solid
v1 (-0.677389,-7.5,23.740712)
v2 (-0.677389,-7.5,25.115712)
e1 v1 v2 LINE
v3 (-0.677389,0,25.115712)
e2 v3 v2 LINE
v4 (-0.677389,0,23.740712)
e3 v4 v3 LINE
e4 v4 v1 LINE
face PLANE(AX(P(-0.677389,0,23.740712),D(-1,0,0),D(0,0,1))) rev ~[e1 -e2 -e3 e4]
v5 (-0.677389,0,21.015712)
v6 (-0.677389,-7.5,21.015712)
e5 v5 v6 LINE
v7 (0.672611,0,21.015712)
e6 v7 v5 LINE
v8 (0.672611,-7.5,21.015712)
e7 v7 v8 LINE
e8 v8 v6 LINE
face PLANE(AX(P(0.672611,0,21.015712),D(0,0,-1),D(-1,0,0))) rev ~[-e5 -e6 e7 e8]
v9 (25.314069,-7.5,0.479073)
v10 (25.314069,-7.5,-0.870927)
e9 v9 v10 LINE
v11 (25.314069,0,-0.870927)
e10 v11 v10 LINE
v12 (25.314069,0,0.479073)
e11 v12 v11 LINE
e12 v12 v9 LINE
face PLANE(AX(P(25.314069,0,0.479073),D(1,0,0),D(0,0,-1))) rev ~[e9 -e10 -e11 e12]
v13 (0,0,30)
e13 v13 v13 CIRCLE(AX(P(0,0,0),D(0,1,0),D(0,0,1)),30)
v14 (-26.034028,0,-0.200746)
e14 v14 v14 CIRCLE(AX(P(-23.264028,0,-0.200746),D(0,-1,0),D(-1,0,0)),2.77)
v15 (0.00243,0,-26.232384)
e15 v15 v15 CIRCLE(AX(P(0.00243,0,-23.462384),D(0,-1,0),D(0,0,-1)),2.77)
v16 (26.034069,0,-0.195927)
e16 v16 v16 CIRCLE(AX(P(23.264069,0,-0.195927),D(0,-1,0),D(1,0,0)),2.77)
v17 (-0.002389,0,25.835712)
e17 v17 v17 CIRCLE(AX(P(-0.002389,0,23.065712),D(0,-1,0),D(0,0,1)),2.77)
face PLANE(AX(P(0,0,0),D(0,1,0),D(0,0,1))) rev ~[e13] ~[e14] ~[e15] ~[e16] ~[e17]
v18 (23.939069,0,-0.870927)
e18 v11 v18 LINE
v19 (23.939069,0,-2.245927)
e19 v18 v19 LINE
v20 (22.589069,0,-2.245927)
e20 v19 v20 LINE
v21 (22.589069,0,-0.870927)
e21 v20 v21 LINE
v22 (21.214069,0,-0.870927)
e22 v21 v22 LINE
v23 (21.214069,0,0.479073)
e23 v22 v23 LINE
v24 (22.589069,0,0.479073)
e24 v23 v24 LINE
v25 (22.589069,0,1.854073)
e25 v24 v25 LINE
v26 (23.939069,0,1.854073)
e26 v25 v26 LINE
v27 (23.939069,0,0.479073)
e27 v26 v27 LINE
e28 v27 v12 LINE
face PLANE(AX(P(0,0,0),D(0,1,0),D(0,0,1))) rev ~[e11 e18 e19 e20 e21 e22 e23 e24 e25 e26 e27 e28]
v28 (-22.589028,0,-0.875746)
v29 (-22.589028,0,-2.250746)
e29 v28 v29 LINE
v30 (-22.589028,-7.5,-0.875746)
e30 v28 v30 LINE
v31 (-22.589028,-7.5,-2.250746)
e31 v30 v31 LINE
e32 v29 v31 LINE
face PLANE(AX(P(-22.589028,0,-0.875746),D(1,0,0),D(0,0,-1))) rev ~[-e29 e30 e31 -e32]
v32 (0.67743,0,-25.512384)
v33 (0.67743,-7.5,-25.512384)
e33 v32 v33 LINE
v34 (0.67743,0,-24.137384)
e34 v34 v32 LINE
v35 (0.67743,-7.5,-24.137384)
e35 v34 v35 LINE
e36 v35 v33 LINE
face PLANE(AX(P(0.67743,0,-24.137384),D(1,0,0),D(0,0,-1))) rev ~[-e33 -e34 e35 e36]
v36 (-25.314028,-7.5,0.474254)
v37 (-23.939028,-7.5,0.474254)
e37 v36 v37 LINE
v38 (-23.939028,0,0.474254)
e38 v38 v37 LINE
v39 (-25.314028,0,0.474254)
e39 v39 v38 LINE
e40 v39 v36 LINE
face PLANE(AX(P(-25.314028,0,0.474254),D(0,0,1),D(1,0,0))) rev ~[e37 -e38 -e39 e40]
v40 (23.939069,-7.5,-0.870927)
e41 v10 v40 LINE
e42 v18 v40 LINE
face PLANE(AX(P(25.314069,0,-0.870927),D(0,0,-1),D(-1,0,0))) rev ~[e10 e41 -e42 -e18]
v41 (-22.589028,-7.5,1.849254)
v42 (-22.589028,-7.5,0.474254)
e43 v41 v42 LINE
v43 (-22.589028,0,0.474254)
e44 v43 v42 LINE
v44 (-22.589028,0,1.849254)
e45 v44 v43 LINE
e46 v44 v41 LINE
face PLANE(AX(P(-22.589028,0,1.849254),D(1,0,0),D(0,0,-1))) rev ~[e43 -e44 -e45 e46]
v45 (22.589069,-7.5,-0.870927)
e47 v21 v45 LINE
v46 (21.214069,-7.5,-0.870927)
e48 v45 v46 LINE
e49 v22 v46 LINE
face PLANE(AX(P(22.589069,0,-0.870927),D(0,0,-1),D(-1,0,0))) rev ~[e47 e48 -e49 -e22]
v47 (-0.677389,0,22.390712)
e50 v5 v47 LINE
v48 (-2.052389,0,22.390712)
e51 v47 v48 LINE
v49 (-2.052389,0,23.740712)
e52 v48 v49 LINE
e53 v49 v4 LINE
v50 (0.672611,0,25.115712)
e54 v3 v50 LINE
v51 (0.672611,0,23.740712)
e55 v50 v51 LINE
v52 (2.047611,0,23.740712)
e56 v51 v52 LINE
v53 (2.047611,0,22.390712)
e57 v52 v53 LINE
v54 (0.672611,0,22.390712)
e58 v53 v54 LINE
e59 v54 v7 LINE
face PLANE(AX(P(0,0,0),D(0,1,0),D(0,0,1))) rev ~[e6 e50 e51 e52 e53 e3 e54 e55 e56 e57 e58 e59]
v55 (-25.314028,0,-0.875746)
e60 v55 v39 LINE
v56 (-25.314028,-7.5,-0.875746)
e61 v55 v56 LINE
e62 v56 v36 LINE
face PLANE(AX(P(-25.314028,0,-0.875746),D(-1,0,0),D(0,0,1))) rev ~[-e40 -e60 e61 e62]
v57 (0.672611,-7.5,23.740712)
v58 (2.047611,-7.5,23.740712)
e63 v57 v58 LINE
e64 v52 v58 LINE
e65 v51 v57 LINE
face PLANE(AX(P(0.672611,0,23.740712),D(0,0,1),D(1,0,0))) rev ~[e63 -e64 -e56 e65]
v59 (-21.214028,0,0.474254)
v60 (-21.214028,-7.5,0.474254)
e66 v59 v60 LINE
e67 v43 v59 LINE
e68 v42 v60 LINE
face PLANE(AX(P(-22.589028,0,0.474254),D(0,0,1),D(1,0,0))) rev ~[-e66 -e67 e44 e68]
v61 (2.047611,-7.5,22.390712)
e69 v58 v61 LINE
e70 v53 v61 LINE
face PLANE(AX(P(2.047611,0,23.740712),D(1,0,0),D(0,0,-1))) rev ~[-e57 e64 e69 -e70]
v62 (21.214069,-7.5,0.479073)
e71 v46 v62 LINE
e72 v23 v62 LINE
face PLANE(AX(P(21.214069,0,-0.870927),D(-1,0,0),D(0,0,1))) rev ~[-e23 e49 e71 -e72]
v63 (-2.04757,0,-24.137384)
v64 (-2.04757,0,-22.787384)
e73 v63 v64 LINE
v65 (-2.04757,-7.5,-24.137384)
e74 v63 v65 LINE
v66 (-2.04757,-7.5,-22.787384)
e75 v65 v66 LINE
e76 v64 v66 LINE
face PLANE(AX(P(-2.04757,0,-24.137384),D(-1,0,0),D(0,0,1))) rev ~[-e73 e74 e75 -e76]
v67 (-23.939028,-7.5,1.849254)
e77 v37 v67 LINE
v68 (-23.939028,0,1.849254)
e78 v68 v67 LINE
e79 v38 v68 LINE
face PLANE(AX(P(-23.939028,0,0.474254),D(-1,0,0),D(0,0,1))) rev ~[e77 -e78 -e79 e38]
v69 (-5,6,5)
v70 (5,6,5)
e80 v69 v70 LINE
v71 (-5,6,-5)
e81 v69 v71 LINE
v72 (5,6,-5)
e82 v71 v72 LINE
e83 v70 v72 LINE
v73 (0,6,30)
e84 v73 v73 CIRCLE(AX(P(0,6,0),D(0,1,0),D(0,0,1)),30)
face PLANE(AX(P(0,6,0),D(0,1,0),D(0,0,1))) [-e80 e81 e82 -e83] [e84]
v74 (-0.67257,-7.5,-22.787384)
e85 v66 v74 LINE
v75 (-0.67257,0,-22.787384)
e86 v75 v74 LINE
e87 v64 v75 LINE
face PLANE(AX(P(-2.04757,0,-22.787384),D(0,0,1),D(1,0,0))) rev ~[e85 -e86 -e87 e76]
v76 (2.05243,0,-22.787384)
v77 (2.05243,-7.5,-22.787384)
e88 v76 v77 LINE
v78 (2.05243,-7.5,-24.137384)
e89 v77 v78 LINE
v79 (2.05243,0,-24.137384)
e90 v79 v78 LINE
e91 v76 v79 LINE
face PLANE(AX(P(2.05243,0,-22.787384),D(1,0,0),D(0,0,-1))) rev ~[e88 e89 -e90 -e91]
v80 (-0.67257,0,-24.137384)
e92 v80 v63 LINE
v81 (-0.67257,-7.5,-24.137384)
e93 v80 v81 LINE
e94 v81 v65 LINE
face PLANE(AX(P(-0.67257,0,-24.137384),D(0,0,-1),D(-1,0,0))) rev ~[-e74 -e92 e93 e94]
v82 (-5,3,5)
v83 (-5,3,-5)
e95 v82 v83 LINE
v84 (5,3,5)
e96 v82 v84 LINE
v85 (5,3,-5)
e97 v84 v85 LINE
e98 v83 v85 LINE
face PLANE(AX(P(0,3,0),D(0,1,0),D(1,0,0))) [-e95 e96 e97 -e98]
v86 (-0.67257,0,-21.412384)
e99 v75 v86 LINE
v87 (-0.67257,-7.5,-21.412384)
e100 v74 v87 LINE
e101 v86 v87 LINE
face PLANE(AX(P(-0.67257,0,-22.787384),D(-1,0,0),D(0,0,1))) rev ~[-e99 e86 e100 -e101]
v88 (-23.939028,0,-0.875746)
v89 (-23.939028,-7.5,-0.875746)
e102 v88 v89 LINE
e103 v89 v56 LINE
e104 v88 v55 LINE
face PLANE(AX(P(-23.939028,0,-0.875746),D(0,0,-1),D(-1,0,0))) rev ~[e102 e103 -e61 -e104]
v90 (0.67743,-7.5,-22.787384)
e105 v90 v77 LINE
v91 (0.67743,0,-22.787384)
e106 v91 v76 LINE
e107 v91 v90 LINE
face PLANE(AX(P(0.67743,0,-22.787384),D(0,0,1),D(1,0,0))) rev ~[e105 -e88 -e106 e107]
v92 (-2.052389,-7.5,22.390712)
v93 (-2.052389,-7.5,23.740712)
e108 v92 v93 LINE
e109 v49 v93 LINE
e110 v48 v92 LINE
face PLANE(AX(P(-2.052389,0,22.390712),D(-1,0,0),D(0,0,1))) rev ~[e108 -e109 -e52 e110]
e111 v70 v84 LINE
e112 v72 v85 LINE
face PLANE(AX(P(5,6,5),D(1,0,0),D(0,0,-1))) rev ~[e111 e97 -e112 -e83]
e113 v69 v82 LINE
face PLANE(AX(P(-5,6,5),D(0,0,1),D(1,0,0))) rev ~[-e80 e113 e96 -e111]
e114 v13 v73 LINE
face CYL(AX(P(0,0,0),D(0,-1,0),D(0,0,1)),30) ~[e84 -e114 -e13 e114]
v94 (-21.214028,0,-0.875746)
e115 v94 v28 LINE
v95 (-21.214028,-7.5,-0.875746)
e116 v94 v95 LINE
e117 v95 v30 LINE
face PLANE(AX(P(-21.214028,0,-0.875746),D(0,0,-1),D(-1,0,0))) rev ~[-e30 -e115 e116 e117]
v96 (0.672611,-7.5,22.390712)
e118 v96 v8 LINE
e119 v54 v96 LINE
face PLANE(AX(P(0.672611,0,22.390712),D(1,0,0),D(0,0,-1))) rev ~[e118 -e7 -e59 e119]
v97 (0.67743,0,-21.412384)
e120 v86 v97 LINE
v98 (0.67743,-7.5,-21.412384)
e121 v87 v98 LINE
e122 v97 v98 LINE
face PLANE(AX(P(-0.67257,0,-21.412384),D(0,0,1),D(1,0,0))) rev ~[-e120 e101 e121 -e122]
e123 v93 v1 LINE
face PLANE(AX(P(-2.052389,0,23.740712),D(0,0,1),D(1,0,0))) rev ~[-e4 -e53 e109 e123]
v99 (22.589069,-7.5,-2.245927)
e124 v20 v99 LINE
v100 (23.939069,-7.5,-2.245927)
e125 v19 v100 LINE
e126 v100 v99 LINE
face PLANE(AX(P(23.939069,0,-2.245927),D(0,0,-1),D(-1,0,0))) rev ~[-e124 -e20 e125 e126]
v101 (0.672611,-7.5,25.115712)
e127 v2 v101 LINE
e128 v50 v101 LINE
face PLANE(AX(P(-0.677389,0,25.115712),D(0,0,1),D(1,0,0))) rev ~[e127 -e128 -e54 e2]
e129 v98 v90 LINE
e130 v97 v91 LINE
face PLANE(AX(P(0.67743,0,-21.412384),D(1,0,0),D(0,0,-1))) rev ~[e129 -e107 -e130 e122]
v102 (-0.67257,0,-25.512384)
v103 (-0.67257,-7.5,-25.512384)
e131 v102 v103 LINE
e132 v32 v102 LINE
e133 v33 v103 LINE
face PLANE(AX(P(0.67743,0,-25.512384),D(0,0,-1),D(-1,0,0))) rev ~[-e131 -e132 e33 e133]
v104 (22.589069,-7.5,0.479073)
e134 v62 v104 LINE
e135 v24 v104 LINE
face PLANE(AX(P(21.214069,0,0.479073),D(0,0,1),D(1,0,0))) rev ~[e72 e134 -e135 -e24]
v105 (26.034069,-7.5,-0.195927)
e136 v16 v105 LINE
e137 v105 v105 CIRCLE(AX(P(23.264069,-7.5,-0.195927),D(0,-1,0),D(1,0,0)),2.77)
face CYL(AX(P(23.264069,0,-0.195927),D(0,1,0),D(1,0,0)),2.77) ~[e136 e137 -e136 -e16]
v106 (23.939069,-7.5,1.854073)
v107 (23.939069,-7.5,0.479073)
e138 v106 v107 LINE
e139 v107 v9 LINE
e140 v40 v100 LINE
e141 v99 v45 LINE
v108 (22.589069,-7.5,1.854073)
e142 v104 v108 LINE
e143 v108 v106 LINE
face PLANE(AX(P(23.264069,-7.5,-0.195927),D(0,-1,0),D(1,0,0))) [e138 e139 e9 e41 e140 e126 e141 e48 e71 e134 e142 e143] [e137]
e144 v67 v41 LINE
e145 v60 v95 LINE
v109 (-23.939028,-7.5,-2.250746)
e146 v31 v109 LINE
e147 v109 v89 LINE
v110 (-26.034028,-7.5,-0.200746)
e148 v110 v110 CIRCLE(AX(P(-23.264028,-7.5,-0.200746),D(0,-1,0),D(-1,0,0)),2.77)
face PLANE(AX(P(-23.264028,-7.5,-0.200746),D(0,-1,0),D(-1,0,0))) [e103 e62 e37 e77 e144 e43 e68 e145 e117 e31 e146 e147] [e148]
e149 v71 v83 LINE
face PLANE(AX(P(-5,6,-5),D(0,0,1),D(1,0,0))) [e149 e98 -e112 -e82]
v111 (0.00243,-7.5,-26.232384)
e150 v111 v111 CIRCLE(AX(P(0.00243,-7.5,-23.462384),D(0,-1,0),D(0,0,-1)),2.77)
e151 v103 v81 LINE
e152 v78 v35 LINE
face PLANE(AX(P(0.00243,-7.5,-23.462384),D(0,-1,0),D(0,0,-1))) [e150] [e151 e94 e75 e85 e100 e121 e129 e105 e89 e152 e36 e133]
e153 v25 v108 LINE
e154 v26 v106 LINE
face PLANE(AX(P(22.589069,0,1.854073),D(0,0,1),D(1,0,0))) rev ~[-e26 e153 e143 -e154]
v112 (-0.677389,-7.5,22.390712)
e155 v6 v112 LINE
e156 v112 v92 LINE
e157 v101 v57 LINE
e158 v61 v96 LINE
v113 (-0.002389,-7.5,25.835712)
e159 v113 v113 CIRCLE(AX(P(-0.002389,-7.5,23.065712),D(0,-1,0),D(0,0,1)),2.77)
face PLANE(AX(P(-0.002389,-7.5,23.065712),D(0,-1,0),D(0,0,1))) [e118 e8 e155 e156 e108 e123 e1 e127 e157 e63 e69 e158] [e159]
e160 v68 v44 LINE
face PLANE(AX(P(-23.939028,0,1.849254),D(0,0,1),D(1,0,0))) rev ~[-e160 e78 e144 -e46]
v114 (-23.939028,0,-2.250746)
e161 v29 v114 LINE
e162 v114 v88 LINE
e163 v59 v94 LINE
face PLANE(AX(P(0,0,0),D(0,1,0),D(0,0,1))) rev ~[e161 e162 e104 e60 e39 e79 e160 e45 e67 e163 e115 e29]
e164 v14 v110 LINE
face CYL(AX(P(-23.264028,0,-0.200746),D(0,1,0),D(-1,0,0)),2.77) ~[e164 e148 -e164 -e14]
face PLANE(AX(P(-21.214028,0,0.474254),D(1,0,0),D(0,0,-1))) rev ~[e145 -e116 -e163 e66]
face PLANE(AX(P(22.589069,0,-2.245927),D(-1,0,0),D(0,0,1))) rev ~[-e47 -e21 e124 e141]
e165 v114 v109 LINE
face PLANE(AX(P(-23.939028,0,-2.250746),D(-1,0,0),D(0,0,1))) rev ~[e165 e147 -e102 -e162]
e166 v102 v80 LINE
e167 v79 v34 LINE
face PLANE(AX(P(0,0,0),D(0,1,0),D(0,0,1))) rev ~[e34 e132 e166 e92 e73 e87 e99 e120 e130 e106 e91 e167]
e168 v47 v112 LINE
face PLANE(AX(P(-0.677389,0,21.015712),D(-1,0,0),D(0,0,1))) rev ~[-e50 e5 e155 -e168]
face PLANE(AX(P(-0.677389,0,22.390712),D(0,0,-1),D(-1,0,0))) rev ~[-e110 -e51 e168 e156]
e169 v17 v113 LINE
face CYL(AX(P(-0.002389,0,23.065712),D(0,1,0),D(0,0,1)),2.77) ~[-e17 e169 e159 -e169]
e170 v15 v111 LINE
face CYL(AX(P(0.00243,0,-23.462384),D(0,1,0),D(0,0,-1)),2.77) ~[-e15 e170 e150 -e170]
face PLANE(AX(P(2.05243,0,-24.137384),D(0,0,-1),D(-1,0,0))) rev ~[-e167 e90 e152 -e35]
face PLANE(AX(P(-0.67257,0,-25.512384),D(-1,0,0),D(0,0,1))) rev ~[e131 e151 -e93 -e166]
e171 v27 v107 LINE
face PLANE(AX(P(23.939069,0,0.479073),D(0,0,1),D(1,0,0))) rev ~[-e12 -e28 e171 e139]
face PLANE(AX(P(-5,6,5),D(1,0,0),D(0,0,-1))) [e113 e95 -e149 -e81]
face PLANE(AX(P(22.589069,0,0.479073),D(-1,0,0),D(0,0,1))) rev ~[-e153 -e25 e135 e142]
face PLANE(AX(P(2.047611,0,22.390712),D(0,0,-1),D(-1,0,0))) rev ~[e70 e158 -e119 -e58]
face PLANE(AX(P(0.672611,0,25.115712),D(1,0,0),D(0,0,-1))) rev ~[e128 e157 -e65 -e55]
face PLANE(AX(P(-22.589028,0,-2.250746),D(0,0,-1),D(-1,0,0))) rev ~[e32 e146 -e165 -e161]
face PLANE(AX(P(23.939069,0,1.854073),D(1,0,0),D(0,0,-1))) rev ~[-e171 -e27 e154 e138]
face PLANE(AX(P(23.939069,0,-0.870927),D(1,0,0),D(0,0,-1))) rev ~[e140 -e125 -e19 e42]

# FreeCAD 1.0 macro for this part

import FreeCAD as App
import Part
import Sketcher
Q = App.Units.Quantity

doc = App.newDocument("Part")
body = doc.addObject("PartDesign::Body", "Body")

sketch1 = body.newObject("Sketcher::SketchObject", "Sketch")
sketch1.AttachmentSupport = (doc.getObject("XZ_Plane"), [""])
sketch1.MapMode = "FlatFace"
sketch1.addGeometry(Part.Circle(App.Vector(0, 0, 0), App.Vector(0, 0, 1), 30), False)
sketch1.addConstraint([
    Sketcher.Constraint("Coincident", 0, 3, -1, 1),
    Sketcher.Constraint("Diameter", 0, Q("60 mm")),
])
pad1 = body.newObject("PartDesign::Pad", "Pad")
pad1.Profile = sketch1
pad1.Length = 6
pad1.Reversed = True

sketch2 = body.newObject("Sketcher::SketchObject", "Sketch001")
sketch2.AttachmentSupport = (doc.getObject("XZ_Plane"), [""])
sketch2.MapMode = "FlatFace"
sketch2.addGeometry([
    Part.Circle(App.Vector(-0.002389, 23.065712, 0), App.Vector(0, 0, 1), 2.77),
    Part.LineSegment(App.Vector(0.672611, 23.740712, 0), App.Vector(2.047611, 23.740712, 0)),
    Part.LineSegment(App.Vector(2.047611, 23.740712, 0), App.Vector(2.047611, 22.390712, 0)),
    Part.LineSegment(App.Vector(2.047611, 22.390712, 0), App.Vector(0.672611, 22.390712, 0)),
    Part.LineSegment(App.Vector(0.672611, 22.390712, 0), App.Vector(0.672611, 21.015712, 0)),
    Part.LineSegment(App.Vector(0.672611, 21.015712, 0), App.Vector(-0.677389, 21.015712, 0)),
    Part.LineSegment(App.Vector(-0.677389, 21.015712, 0), App.Vector(-0.677389, 22.390712, 0)),
    Part.LineSegment(App.Vector(-0.677389, 22.390712, 0), App.Vector(-2.052389, 22.390712, 0)),
    Part.LineSegment(App.Vector(-2.052389, 22.390712, 0), App.Vector(-2.052389, 23.740712, 0)),
    Part.LineSegment(App.Vector(-2.052389, 23.740712, 0), App.Vector(-0.677389, 23.740712, 0)),
    Part.LineSegment(App.Vector(-0.677389, 23.740712, 0), App.Vector(-0.677389, 25.115712, 0)),
    Part.LineSegment(App.Vector(-0.677389, 25.115712, 0), App.Vector(0.672611, 25.115712, 0)),
    Part.LineSegment(App.Vector(0.672611, 25.115712, 0), App.Vector(0.672611, 23.740712, 0)),
], False)
sketch2.addConstraint([
    Sketcher.Constraint("Coincident", 1, 2, 2, 1),
    Sketcher.Constraint("Coincident", 2, 2, 3, 1),
    Sketcher.Constraint("Coincident", 3, 2, 4, 1),
    Sketcher.Constraint("Coincident", 4, 2, 5, 1),
    Sketcher.Constraint("Coincident", 5, 2, 6, 1),
    Sketcher.Constraint("Coincident", 6, 2, 7, 1),
    Sketcher.Constraint("Coincident", 7, 2, 8, 1),
    Sketcher.Constraint("Coincident", 8, 2, 9, 1),
    Sketcher.Constraint("Coincident", 9, 2, 10, 1),
    Sketcher.Constraint("Coincident", 10, 2, 11, 1),
    Sketcher.Constraint("Coincident", 11, 2, 12, 1),
    Sketcher.Constraint("Coincident", 12, 2, 1, 1),
    Sketcher.Constraint("Horizontal", 1),
    Sketcher.Constraint("Vertical", 2),
    Sketcher.Constraint("Horizontal", 3),
    Sketcher.Constraint("Vertical", 4),
    Sketcher.Constraint("Horizontal", 5),
    Sketcher.Constraint("Vertical", 6),
    Sketcher.Constraint("Horizontal", 7),
    Sketcher.Constraint("Vertical", 8),
    Sketcher.Constraint("Horizontal", 9),
    Sketcher.Constraint("Vertical", 10),
    Sketcher.Constraint("Horizontal", 11),
    Sketcher.Constraint("Vertical", 12),
    Sketcher.Constraint("Horizontal", 3, 2, 6, 2),
    Sketcher.Constraint("Horizontal", 1, 2, 8, 2),
    Sketcher.Constraint("Vertical", 6, 2, 9, 2),
    Sketcher.Constraint("Vertical", 4, 2, 11, 2),
    Sketcher.Constraint("Equal", 3, 7),
    Sketcher.Constraint("Equal", 11, 2),
    Sketcher.Constraint("Equal", 9, 4),
    Sketcher.Constraint("Equal", 6, 10),
    Sketcher.Constraint("Diameter", 0, Q("5.54 mm")),
    Sketcher.Constraint("DistanceX", 5, 2, 5, 1, Q("1.35 mm")),
    Sketcher.Constraint("DistanceX", 1, 1, 1, 2, Q("1.375 mm")),
    Sketcher.Constraint("DistanceX", 0, 3, 1, 2, Q("2.05 mm")),
    Sketcher.Constraint("DistanceY", 4, 2, 0, 3, Q("2.05 mm")),
    Sketcher.Constraint("DistanceX", 0, 3, -1, 1, Q("0.002389 mm")),
    Sketcher.Constraint("DistanceY", -1, 1, 0, 3, Q("23.065712 mm")),
])
pad2 = body.newObject("PartDesign::Pad", "Pad001")
pad2.Profile = sketch2
pad2.Length = 7.5
doc.recompute()

datumline = body.newObject("PartDesign::Line", "DatumLine")
datumline.Placement = App.Placement(App.Vector(0.000021, 0, -0.198336), App.Rotation(App.Vector(0, 0, 1), App.Vector(0, 1, 0)))
polarpattern = body.newObject("PartDesign::PolarPattern", "PolarPattern")
polarpattern.Originals = [pad2]
polarpattern.Axis = (datumline, [""])
polarpattern.Angle = 360
polarpattern.Occurrences = 4
body.Tip = polarpattern

sketch3 = body.newObject("Sketcher::SketchObject", "Sketch002")
sketch3.AttachmentSupport = (doc.getObject("XZ_Plane"), [""])
sketch3.MapMode = "FlatFace"
sketch3.AttachmentOffset = App.Placement(App.Vector(0, 0, -6), App.Rotation())
sketch3.addGeometry([
    Part.LineSegment(App.Vector(-5, -5, 0), App.Vector(-5, 5, 0)),
    Part.LineSegment(App.Vector(-5, 5, 0), App.Vector(5, 5, 0)),
    Part.LineSegment(App.Vector(5, 5, 0), App.Vector(5, -5, 0)),
    Part.LineSegment(App.Vector(5, -5, 0), App.Vector(-5, -5, 0)),
], False)
sketch3.addConstraint([
    Sketcher.Constraint("Coincident", 0, 2, 1, 1),
    Sketcher.Constraint("Coincident", 1, 2, 2, 1),
    Sketcher.Constraint("Coincident", 2, 2, 3, 1),
    Sketcher.Constraint("Coincident", 3, 2, 0, 1),
    Sketcher.Constraint("Vertical", 0),
    Sketcher.Constraint("Horizontal", 1),
    Sketcher.Constraint("Vertical", 2),
    Sketcher.Constraint("Horizontal", 3),
    Sketcher.Constraint("Symmetric", 0, 2, 2, 2, -1, 1),
    Sketcher.Constraint("Equal", 3, 0),
    Sketcher.Constraint("DistanceX", 1, 1, 1, 2, Q("10 mm")),
])
pocket1 = body.newObject("PartDesign::Pocket", "Pocket")
pocket1.Profile = sketch3
pocket1.Length = 3
pocket1.Reversed = True

doc.recompute()
